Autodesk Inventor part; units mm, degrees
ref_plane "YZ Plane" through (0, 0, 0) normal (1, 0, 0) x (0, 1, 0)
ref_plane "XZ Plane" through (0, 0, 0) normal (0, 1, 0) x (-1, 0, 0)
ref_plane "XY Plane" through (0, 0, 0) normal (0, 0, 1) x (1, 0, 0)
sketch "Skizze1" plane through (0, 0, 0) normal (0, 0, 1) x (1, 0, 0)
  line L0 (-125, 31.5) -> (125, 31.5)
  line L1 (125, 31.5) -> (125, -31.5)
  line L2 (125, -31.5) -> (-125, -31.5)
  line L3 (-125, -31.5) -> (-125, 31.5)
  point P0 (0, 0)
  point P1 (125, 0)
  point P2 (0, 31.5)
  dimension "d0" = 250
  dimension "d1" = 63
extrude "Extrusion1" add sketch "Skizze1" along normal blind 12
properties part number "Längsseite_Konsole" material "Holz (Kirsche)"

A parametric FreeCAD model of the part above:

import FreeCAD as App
import Part
import Sketcher

doc = App.newDocument("Part")
body = doc.addObject("PartDesign::Body", "Body")

# Sketch on XY plane
sketch1 = doc.addObject("Sketcher::SketchObject", "Sketch")
body.addObject(sketch1)
sketch1.AttachmentSupport = (doc.XY_Plane, [""])
sketch1.MapMode = "FlatFace"
sketch1.addGeometry([
    Part.LineSegment(App.Vector(125, 32, 0), App.Vector(-125, 32, 0)),
    Part.LineSegment(App.Vector(-125, 32, 0), App.Vector(-125, -32, 0)),
    Part.LineSegment(App.Vector(-125, -32, 0), App.Vector(125, -32, 0)),
    Part.LineSegment(App.Vector(125, -32, 0), App.Vector(125, 32, 0)),
], False)
sketch1.addConstraint([
    Sketcher.Constraint("Coincident", 0, 2, 1, 1),
    Sketcher.Constraint("Coincident", 1, 2, 2, 1),
    Sketcher.Constraint("Coincident", 2, 2, 3, 1),
    Sketcher.Constraint("Coincident", 3, 2, 0, 1),
    Sketcher.Constraint("Horizontal", 0),
    Sketcher.Constraint("Vertical", 1),
    Sketcher.Constraint("Horizontal", 2),
    Sketcher.Constraint("Vertical", 3),
    Sketcher.Constraint("Symmetric", 0, 2, 2, 2, -1, 1),
    Sketcher.Constraint("DistanceX", 0, 2, 0, 1, 250.0),
    Sketcher.Constraint("DistanceY", 1, 2, 1, 1, 63.0),
])
pad1 = doc.addObject("PartDesign::Pad", "Pad")
body.addObject(pad1)
pad1.Profile = sketch1
pad1.Length = 12

doc.recompute()
